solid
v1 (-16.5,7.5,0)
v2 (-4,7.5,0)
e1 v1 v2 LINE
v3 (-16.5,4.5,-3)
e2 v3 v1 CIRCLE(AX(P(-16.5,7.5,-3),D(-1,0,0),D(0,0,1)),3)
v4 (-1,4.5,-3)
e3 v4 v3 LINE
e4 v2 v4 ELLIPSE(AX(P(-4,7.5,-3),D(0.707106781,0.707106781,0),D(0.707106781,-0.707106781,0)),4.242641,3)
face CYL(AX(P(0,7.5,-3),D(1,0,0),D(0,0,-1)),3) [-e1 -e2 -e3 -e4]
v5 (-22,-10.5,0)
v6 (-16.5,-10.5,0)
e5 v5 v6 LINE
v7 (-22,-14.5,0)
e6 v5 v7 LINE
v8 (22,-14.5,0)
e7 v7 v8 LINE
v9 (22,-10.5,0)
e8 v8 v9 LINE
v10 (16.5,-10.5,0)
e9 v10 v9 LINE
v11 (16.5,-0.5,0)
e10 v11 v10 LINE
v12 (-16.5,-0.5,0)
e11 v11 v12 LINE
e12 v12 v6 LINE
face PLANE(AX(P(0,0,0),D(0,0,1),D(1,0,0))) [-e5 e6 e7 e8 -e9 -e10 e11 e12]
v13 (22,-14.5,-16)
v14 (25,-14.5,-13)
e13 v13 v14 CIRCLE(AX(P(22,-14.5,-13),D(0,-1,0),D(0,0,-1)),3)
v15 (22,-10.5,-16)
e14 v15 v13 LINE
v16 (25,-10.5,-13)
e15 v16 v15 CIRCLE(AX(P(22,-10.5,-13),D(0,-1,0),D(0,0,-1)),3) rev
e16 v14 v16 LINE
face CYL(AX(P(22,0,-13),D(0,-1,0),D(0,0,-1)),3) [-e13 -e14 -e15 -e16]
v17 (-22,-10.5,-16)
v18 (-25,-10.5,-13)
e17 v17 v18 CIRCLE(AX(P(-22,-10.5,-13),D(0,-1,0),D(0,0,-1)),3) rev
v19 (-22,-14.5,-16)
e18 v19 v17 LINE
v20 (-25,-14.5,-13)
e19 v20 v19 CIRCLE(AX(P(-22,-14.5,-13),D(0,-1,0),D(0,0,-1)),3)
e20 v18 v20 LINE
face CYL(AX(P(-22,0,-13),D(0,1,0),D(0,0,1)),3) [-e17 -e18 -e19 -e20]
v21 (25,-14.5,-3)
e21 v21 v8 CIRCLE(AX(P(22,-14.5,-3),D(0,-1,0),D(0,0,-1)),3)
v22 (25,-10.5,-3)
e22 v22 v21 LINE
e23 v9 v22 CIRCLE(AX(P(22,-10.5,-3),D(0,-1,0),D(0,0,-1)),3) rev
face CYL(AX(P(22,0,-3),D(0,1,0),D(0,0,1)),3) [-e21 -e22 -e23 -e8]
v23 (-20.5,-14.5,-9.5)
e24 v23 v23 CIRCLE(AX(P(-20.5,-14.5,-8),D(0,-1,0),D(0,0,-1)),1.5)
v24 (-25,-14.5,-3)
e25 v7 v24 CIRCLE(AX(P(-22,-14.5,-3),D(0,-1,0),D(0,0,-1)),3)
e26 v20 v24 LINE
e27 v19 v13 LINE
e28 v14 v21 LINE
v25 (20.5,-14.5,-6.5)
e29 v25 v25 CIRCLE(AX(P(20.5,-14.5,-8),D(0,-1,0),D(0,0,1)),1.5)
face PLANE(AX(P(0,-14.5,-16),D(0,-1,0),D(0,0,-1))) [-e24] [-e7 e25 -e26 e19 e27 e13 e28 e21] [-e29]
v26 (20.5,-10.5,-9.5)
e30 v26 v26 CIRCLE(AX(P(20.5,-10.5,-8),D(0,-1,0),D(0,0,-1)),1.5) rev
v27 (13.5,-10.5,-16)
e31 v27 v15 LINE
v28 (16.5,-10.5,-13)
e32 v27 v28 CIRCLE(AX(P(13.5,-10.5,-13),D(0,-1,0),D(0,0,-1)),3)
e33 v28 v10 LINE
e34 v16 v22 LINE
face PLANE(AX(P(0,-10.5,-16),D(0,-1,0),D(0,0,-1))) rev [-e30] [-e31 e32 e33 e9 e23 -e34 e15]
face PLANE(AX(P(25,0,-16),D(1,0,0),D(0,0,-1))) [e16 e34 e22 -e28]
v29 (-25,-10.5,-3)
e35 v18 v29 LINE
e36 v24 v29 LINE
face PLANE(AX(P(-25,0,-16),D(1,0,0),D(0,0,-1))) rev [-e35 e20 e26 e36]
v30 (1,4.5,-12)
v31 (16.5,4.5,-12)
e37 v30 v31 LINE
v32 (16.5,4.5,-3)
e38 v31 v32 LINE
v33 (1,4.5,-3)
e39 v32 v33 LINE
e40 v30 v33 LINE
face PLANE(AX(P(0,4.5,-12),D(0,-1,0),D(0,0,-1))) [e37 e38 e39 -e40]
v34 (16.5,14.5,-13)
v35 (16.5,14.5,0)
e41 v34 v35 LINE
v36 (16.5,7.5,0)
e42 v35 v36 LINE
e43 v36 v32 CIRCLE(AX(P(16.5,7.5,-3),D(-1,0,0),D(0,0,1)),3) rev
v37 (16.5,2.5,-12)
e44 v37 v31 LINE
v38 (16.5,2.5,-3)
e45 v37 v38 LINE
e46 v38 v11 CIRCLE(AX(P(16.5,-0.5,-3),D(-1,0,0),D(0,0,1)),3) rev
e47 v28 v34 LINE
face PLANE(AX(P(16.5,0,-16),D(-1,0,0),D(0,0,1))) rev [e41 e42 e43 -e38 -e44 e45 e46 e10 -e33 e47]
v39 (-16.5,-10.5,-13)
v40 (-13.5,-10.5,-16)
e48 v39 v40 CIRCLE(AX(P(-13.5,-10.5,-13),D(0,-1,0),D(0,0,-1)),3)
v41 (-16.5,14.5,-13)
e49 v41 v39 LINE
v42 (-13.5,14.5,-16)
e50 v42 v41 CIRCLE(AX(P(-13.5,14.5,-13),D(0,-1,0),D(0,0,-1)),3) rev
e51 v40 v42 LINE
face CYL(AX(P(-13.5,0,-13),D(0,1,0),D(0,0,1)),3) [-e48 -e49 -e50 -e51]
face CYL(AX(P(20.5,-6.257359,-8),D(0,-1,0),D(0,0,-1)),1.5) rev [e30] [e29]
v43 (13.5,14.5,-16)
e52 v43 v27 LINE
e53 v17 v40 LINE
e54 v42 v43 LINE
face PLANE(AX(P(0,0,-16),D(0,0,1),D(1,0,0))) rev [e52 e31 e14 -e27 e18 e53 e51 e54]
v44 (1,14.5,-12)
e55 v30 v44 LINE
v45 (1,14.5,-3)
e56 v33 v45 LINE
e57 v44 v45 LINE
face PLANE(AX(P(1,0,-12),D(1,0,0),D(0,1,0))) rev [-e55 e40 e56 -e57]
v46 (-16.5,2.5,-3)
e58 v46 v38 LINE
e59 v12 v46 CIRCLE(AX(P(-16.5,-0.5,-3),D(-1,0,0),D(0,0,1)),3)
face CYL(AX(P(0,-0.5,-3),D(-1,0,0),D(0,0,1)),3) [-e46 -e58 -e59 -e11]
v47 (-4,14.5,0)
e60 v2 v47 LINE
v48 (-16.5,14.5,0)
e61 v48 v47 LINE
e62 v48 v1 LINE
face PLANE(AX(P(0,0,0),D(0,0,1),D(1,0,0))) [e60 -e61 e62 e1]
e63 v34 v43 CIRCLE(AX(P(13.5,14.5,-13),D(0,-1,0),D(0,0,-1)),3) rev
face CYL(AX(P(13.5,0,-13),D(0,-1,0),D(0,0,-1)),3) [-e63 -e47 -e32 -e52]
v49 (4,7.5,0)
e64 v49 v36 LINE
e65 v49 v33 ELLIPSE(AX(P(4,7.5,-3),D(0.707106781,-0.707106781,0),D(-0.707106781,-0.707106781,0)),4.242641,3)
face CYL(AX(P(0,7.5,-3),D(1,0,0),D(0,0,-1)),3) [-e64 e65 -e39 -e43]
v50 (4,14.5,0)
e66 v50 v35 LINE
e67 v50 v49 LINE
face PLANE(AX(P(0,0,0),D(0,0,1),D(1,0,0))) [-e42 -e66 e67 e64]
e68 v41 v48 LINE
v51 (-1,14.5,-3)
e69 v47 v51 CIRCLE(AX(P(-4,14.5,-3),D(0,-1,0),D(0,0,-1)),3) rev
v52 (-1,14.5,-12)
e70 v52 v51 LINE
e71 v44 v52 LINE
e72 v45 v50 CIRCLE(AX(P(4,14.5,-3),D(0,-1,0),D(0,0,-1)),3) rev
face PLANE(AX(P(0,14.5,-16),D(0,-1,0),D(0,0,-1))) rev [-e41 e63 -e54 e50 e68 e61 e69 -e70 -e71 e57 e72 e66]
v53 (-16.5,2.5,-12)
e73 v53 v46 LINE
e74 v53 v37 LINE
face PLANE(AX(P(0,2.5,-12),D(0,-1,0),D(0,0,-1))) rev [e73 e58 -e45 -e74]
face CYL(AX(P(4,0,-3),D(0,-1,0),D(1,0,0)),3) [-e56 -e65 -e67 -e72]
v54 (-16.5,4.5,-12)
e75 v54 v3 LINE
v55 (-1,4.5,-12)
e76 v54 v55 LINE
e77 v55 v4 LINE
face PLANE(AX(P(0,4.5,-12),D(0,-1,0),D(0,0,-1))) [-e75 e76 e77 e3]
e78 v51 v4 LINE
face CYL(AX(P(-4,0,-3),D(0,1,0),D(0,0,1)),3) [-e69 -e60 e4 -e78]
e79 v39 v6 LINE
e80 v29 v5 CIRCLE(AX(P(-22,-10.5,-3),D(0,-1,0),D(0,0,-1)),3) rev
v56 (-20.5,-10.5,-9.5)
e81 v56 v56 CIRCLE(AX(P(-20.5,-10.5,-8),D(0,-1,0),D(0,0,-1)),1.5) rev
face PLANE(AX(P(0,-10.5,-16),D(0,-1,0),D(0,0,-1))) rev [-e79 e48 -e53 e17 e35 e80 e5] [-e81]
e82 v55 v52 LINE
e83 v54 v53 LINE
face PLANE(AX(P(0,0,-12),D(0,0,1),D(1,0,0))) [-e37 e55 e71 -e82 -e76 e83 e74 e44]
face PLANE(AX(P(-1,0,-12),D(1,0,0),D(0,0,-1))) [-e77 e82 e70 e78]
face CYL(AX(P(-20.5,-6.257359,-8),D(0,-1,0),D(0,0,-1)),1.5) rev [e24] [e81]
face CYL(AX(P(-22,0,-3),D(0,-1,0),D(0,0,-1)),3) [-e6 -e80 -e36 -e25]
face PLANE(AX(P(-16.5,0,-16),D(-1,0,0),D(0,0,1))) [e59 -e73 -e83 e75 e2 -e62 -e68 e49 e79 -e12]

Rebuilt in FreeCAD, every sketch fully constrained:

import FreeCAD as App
import Part
import Sketcher
from FreeCAD import Vector


def edges_at(feature, points):
    """Names of the edges that pass closest to the given points."""
    edges = feature.Shape.Edges
    near = lambda p: min(range(len(edges)), key=lambda i: edges[i].distToShape(Part.Vertex(*p))[0])
    return sorted({f"Edge{near(p) + 1}" for p in points})

doc = App.newDocument("Part")
params = doc.addObject("Spreadsheet::Sheet", "Params")
for row, (alias, value) in enumerate([
    ("sketch1_width", "33 mm"),
    ("sketch1_width2", "50 mm"),
    ("sketch1_height", "25 mm"),
    ("sketch1_height2", "4 mm"),
    ("pad1_length", "16 mm"),
    ("sketch2_width", "2 mm"),
    ("sketch2_width2", "33 mm"),
    ("sketch2_height", "10 mm"),
    ("pocket1_length", "12 mm"),
    ("sketch3_diameter", "3 mm"),
    ("pocket2_length", "4 mm"),
    ("fillet_radius", "3 mm"),
    ("fillet2_radius", "3 mm"),
], start=1):
    params.set(f"A{row}", alias)
    params.set(f"B{row}", "=" + value)
    params.setAlias(f"B{row}", alias)

body = doc.addObject("PartDesign::Body", "Body")

# Sketch on XY plane
sketch1 = doc.addObject("Sketcher::SketchObject", "Sketch")
body.addObject(sketch1)
sketch1.AttachmentSupport = (doc.XY_Plane, [""])
sketch1.MapMode = "FlatFace"
sketch1.addGeometry(Part.LineSegment(Vector(25, -10.5, 0), Vector(16.5, -10.5, 0)), False)
sketch1.addGeometry(Part.LineSegment(Vector(16.5, -10.5, 0), Vector(16.5, 14.5, 0)), False)
sketch1.addGeometry(Part.LineSegment(Vector(16.5, 14.5, 0), Vector(-16.5, 14.5, 0)), False)
sketch1.addGeometry(Part.LineSegment(Vector(-16.5, 14.5, 0), Vector(-16.5, -10.5, 0)), False)
sketch1.addGeometry(Part.LineSegment(Vector(-16.5, -10.5, 0), Vector(-25, -10.5, 0)), False)
sketch1.addGeometry(Part.LineSegment(Vector(-25, -10.5, 0), Vector(-25, -14.5, 0)), False)
sketch1.addGeometry(Part.LineSegment(Vector(-25, -14.5, 0), Vector(25, -14.5, 0)), False)
sketch1.addGeometry(Part.LineSegment(Vector(25, -14.5, 0), Vector(25, -10.5, 0)), False)
sketch1.addConstraint(Sketcher.Constraint("Coincident", 0, 2, 1, 1))
sketch1.addConstraint(Sketcher.Constraint("Coincident", 1, 2, 2, 1))
sketch1.addConstraint(Sketcher.Constraint("Coincident", 2, 2, 3, 1))
sketch1.addConstraint(Sketcher.Constraint("Coincident", 3, 2, 4, 1))
sketch1.addConstraint(Sketcher.Constraint("Coincident", 4, 2, 5, 1))
sketch1.addConstraint(Sketcher.Constraint("Coincident", 5, 2, 6, 1))
sketch1.addConstraint(Sketcher.Constraint("Coincident", 6, 2, 7, 1))
sketch1.addConstraint(Sketcher.Constraint("Coincident", 7, 2, 0, 1))
sketch1.addConstraint(Sketcher.Constraint("Horizontal", 0))
sketch1.addConstraint(Sketcher.Constraint("Vertical", 1))
sketch1.addConstraint(Sketcher.Constraint("Horizontal", 2))
sketch1.addConstraint(Sketcher.Constraint("Vertical", 3))
sketch1.addConstraint(Sketcher.Constraint("Horizontal", 4))
sketch1.addConstraint(Sketcher.Constraint("Vertical", 5))
sketch1.addConstraint(Sketcher.Constraint("Horizontal", 6))
sketch1.addConstraint(Sketcher.Constraint("Vertical", 7))
sketch1.addConstraint(Sketcher.Constraint("Symmetric", 0, 2, 3, 2, -2))
sketch1.addConstraint(Sketcher.Constraint("Equal", 0, 4))
sketch1.addConstraint(Sketcher.Constraint("DistanceX", 2, 2, 2, 1, 33.0))
sketch1.addConstraint(Sketcher.Constraint("DistanceX", 6, 1, 6, 2, 50.0))
sketch1.addConstraint(Sketcher.Constraint("DistanceY", 1, 1, 1, 2, 25.0))
sketch1.addConstraint(Sketcher.Constraint("DistanceY", 5, 2, 5, 1, 4.0))
sketch1.addConstraint(Sketcher.Constraint("DistanceY", 0, 2, -1, 1, 10.5))
sketch1.setExpression("Constraints[18]", "Params.sketch1_width")
sketch1.setExpression("Constraints[19]", "Params.sketch1_width2")
sketch1.setExpression("Constraints[20]", "Params.sketch1_height")
sketch1.setExpression("Constraints[21]", "Params.sketch1_height2")
pad1 = doc.addObject("PartDesign::Pad", "Pad")
body.addObject(pad1)
pad1.Profile = sketch1
pad1.setExpression("Length", "Params.pad1_length")
pad1.Reversed = True

# Sketch on XY plane
sketch2 = doc.addObject("Sketcher::SketchObject", "Sketch001")
body.addObject(sketch2)
sketch2.AttachmentSupport = (doc.XY_Plane, [""])
sketch2.MapMode = "FlatFace"
sketch2.addGeometry(Part.LineSegment(Vector(1, 14.5, 0), Vector(-1, 14.5, 0)), False)
sketch2.addGeometry(Part.LineSegment(Vector(-1, 14.5, 0), Vector(-1, 4.5, 0)), False)
sketch2.addGeometry(Part.LineSegment(Vector(-1, 4.5, 0), Vector(-16.5, 4.5, 0)), False)
sketch2.addGeometry(Part.LineSegment(Vector(-16.5, 4.5, 0), Vector(-16.5, 2.5, 0)), False)
sketch2.addGeometry(Part.LineSegment(Vector(-16.5, 2.5, 0), Vector(16.5, 2.5, 0)), False)
sketch2.addGeometry(Part.LineSegment(Vector(16.5, 2.5, 0), Vector(16.5, 4.5, 0)), False)
sketch2.addGeometry(Part.LineSegment(Vector(16.5, 4.5, 0), Vector(1, 4.5, 0)), False)
sketch2.addGeometry(Part.LineSegment(Vector(1, 4.5, 0), Vector(1, 14.5, 0)), False)
sketch2.addConstraint(Sketcher.Constraint("Coincident", 0, 2, 1, 1))
sketch2.addConstraint(Sketcher.Constraint("Coincident", 1, 2, 2, 1))
sketch2.addConstraint(Sketcher.Constraint("Coincident", 2, 2, 3, 1))
sketch2.addConstraint(Sketcher.Constraint("Coincident", 3, 2, 4, 1))
sketch2.addConstraint(Sketcher.Constraint("Coincident", 4, 2, 5, 1))
sketch2.addConstraint(Sketcher.Constraint("Coincident", 5, 2, 6, 1))
sketch2.addConstraint(Sketcher.Constraint("Coincident", 6, 2, 7, 1))
sketch2.addConstraint(Sketcher.Constraint("Coincident", 7, 2, 0, 1))
sketch2.addConstraint(Sketcher.Constraint("Horizontal", 0))
sketch2.addConstraint(Sketcher.Constraint("Vertical", 1))
sketch2.addConstraint(Sketcher.Constraint("Horizontal", 2))
sketch2.addConstraint(Sketcher.Constraint("Vertical", 3))
sketch2.addConstraint(Sketcher.Constraint("Horizontal", 4))
sketch2.addConstraint(Sketcher.Constraint("Vertical", 5))
sketch2.addConstraint(Sketcher.Constraint("Horizontal", 6))
sketch2.addConstraint(Sketcher.Constraint("Vertical", 7))
sketch2.addConstraint(Sketcher.Constraint("Symmetric", 2, 2, 5, 2, -2))
sketch2.addConstraint(Sketcher.Constraint("Equal", 2, 6))
sketch2.addConstraint(Sketcher.Constraint("Equal", 0, 3))
sketch2.addConstraint(Sketcher.Constraint("DistanceX", 0, 2, 0, 1, 2.0))
sketch2.addConstraint(Sketcher.Constraint("DistanceX", 4, 1, 4, 2, 33.0))
sketch2.addConstraint(Sketcher.Constraint("DistanceY", 1, 2, 1, 1, 10.0))
sketch2.addConstraint(Sketcher.Constraint("DistanceY", -1, 1, 0, 2, 14.5))
sketch2.setExpression("Constraints[19]", "Params.sketch2_width")
sketch2.setExpression("Constraints[20]", "Params.sketch2_width2")
sketch2.setExpression("Constraints[21]", "Params.sketch2_height")
pocket1 = doc.addObject("PartDesign::Pocket", "Pocket")
body.addObject(pocket1)
pocket1.Profile = sketch2
pocket1.setExpression("Length", "Params.pocket1_length")

# Sketch on XZ plane
sketch3 = doc.addObject("Sketcher::SketchObject", "Sketch002")
body.addObject(sketch3)
sketch3.AttachmentSupport = (doc.XZ_Plane, [""])
sketch3.MapMode = "FlatFace"
sketch3.AttachmentOffset = App.Placement(Vector(0, 0, 14.5), App.Rotation())
sketch3.addGeometry(Part.Circle(Vector(-20.5, -8, 0), Vector(0, 0, 1), 1.5), False)
sketch3.addGeometry(Part.Circle(Vector(20.5, -8, 0), Vector(0, 0, 1), 1.5), False)
sketch3.addConstraint(Sketcher.Constraint("Equal", 0, 1))
sketch3.addConstraint(Sketcher.Constraint("Symmetric", 0, 3, 1, 3, -2))
sketch3.addConstraint(Sketcher.Constraint("Diameter", 0, 3.0))
sketch3.addConstraint(Sketcher.Constraint("DistanceY", 0, 3, -1, 1, 8.0))
sketch3.addConstraint(Sketcher.Constraint("DistanceX", 0, 3, 1, 3, 41.0))
sketch3.setExpression("Constraints[2]", "Params.sketch3_diameter")
pocket2 = doc.addObject("PartDesign::Pocket", "Pocket001")
body.addObject(pocket2)
pocket2.Profile = sketch3
pocket2.setExpression("Length", "Params.pocket2_length")
doc.recompute()

fillet = doc.addObject("PartDesign::Fillet", "Fillet")
body.addObject(fillet)
fillet.Base = (pocket2, edges_at(pocket2, [
    (-1, 9.5, 0),
    (8.75, 4.5, 0),
    (-8.75, 4.5, 0),
    (0, 2.5, 0),
    (1, 9.5, 0),
]))
fillet.setExpression("Radius", "Params.fillet_radius")
doc.recompute()

fillet2 = doc.addObject("PartDesign::Fillet", "Fillet001")
body.addObject(fillet2)
fillet2.Base = (fillet, edges_at(fillet, [
    (-25, -12.5, 0),
    (-16.5, 2, -16),
    (-25, -12.5, -16),
    (25, -12.5, -16),
    (16.5, 2, -16),
    (25, -12.5, 0),
]))
fillet2.setExpression("Radius", "Params.fillet2_radius")

doc.recompute()
